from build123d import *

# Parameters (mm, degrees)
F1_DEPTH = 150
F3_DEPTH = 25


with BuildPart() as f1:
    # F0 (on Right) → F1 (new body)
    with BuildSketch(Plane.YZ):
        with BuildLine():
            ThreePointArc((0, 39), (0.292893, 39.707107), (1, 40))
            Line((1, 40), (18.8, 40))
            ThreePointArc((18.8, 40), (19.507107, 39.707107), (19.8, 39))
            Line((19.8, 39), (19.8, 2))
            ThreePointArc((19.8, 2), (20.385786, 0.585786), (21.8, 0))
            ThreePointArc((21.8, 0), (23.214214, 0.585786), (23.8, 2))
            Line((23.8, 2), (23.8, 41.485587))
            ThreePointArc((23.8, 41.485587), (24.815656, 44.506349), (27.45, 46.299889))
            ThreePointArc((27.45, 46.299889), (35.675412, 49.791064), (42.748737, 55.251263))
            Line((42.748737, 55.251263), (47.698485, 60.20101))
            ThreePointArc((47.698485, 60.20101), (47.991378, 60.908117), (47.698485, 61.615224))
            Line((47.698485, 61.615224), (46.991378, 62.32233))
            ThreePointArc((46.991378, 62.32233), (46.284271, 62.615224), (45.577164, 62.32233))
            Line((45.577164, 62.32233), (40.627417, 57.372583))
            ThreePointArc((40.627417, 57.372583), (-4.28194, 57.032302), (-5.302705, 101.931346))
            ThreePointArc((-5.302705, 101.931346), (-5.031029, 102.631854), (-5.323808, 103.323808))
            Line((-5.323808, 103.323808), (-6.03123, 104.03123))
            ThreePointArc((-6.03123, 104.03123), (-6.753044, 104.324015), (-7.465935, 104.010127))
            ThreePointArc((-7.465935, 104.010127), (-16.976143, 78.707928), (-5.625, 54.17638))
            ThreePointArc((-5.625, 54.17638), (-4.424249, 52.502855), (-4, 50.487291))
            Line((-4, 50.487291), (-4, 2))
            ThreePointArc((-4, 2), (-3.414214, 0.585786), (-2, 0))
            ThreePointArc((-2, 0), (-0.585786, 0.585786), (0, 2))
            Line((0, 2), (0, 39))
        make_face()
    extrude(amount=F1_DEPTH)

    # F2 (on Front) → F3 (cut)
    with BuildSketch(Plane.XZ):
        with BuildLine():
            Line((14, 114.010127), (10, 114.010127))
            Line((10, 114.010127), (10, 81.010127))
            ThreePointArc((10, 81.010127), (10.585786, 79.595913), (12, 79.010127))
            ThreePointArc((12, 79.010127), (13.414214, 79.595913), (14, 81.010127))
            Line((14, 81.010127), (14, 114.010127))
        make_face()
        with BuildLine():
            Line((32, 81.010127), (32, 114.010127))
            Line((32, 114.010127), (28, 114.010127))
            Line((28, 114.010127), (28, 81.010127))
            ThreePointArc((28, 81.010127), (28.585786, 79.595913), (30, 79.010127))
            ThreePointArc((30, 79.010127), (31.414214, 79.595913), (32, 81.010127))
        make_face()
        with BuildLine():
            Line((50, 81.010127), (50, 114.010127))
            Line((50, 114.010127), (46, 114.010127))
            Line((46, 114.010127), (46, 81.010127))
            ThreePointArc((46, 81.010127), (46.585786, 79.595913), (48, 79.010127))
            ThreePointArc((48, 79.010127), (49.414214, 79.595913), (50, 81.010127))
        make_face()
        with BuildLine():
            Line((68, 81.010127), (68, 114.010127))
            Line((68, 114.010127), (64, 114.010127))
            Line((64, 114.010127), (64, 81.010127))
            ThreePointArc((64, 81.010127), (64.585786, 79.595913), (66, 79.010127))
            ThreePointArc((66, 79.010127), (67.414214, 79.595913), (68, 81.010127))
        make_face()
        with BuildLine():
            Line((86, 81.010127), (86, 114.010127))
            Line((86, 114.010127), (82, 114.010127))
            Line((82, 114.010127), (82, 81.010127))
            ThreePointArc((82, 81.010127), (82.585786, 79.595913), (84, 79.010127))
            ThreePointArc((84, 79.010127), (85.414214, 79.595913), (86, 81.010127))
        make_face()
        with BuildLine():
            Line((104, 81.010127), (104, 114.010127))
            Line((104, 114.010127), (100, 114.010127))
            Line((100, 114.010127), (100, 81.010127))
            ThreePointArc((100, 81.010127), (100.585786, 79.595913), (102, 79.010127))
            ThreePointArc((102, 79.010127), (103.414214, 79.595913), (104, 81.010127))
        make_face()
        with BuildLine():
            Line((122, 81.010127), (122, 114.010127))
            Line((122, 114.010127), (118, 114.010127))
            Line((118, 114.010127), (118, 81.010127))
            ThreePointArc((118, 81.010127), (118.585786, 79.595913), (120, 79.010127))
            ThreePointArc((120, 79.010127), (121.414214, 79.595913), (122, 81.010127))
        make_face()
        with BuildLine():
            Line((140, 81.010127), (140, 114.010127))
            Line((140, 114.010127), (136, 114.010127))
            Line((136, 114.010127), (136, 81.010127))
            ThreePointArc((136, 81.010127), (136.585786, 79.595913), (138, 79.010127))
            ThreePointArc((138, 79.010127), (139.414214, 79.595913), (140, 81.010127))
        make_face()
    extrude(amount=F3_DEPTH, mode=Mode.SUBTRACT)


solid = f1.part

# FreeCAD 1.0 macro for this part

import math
import FreeCAD as App
import Part
import Sketcher

V = App.Vector

doc = App.newDocument("Part")
params = doc.addObject("Spreadsheet::Sheet", "Params")
for row, (alias, value) in enumerate([
    ("sketch1_radius", "0.999999 mm"),
    ("sketch1_radius2", "0.999999 mm"),
    ("sketch1_radius3", "1.999999 mm"),
    ("sketch1_radius4", "5.000001 mm"),
    ("sketch1_radius5", "1.000001 mm"),
    ("pad1_length", "150 mm"),
    ("sketch2_radius", "1.999999 mm"),
    ("sketch2_height", "33 mm"),
    ("pocket1_length", "25 mm"),
], start=1):
    params.set(f"A{row}", alias)
    params.set(f"B{row}", "=" + value)
    params.setAlias(f"B{row}", alias)

body = doc.addObject("PartDesign::Body", "Body")

# Sketch on YZ plane
sketch1 = doc.addObject("Sketcher::SketchObject", "Sketch")
body.addObject(sketch1)
sketch1.AttachmentSupport = (doc.YZ_Plane, [""])
sketch1.MapMode = "FlatFace"
sketch1.addGeometry([
    Part.ArcOfCircle(Part.Circle(V(0.999999, 39.000001, 0), V(0, 0, 1), 0.999999), math.radians(89.999957), math.radians(180.000043)),  # 0
    Part.LineSegment(V(1, 40, 0), V(18.8, 40, 0)),  # 1
    Part.ArcOfCircle(Part.Circle(V(18.800001, 39.000001, 0), V(0, 0, 1), 0.999999), math.radians(-0.000043), math.radians(90.000043)),  # 2
    Part.LineSegment(V(19.8, 39, 0), V(19.8, 2, 0)),  # 3
    Part.ArcOfCircle(Part.Circle(V(21.799999, 1.999999, 0), V(0, 0, 1), 1.999999), math.radians(179.999957), math.radians(270.000043)),  # 4
    Part.ArcOfCircle(Part.Circle(V(21.800001, 1.999999, 0), V(0, 0, 1), 1.999999), math.radians(-90.000043), math.radians(0.000043)),  # 5
    Part.LineSegment(V(23.8, 2, 0), V(23.8, 41.485587, 0)),  # 6
    Part.ArcOfCircle(Part.Circle(V(28.800001, 41.485587, 0), V(0, 0, 1), 5.000001), math.radians(105.664274), math.radians(179.999997)),  # 7
    Part.ArcOfCircle(Part.Circle(V(18.000006, 79.999989, 0), V(0, 0, 1), 34.999987), math.radians(-74.335738), math.radians(-44.999994)),  # 8
    Part.LineSegment(V(42.748737, 55.251263, 0), V(47.698485, 60.20101, 0)),  # 9
    Part.ArcOfCircle(Part.Circle(V(46.991377, 60.908117, 0), V(0, 0, 1), 1.000001), math.radians(-44.999957), math.radians(44.999957)),  # 10
    Part.LineSegment(V(47.698485, 61.615224, 0), V(46.991378, 62.32233, 0)),  # 11
    Part.ArcOfCircle(Part.Circle(V(46.284271, 61.615225, 0), V(0, 0, 1), 0.999999), math.radians(44.999904), math.radians(135.000096)),  # 12
    Part.LineSegment(V(45.577164, 62.32233, 0), V(40.627417, 57.372583, 0)),  # 13
    Part.ArcOfCircle(Part.Circle(V(18, 80, 0), V(0, 0, 1), 32), math.radians(136.736502), math.radians(315)),  # 14
    Part.ArcOfCircle(Part.Circle(V(-6.030914, 102.616701, 0), V(0, 0, 1), 1), math.radians(-43.263536), math.radians(45.000058)),  # 15
    Part.LineSegment(V(-5.323808, 103.323808, 0), V(-6.03123, 104.03123, 0)),  # 16
    Part.ArcOfCircle(Part.Circle(V(-6.738337, 103.324123, 0), V(0, 0, 1), 1), math.radians(45.000015), math.radians(136.685384)),  # 17
    Part.ArcOfCircle(Part.Circle(V(17.999999, 80.000001, 0), V(0, 0, 1), 34.999999), math.radians(136.685413), math.radians(227.545851)),  # 18
    Part.ArcOfCircle(Part.Circle(V(-9.000006, 50.487289, 0), V(0, 0, 1), 5.000006), math.radians(0.000029), math.radians(47.545817)),  # 19
    Part.LineSegment(V(-4, 50.487291, 0), V(-4, 2, 0)),  # 20
    Part.ArcOfCircle(Part.Circle(V(-2.000001, 1.999999, 0), V(0, 0, 1), 1.999999), math.radians(179.999957), math.radians(270.000043)),  # 21
    Part.ArcOfCircle(Part.Circle(V(-1.999999, 1.999999, 0), V(0, 0, 1), 1.999999), math.radians(-90.000043), math.radians(0.000043)),  # 22
    Part.LineSegment(V(0, 2, 0), V(0, 39, 0)),  # 23
], False)
sketch1.addConstraint([
    Sketcher.Constraint("Coincident", 0, 1, 1, 1),
    Sketcher.Constraint("Coincident", 1, 2, 2, 2),
    Sketcher.Constraint("Coincident", 2, 1, 3, 1),
    Sketcher.Constraint("Coincident", 3, 2, 4, 1),
    Sketcher.Constraint("Coincident", 4, 2, 5, 1),
    Sketcher.Constraint("Coincident", 5, 2, 6, 1),
    Sketcher.Constraint("Coincident", 6, 2, 7, 2),
    Sketcher.Constraint("Coincident", 7, 1, 8, 1),
    Sketcher.Constraint("Coincident", 8, 2, 9, 1),
    Sketcher.Constraint("Coincident", 9, 2, 10, 1),
    Sketcher.Constraint("Coincident", 10, 2, 11, 1),
    Sketcher.Constraint("Coincident", 11, 2, 12, 1),
    Sketcher.Constraint("Coincident", 12, 2, 13, 1),
    Sketcher.Constraint("Coincident", 13, 2, 14, 2),
    Sketcher.Constraint("Coincident", 14, 1, 15, 1),
    Sketcher.Constraint("Coincident", 15, 2, 16, 1),
    Sketcher.Constraint("Coincident", 16, 2, 17, 1),
    Sketcher.Constraint("Coincident", 17, 2, 18, 1),
    Sketcher.Constraint("Coincident", 18, 2, 19, 2),
    Sketcher.Constraint("Coincident", 19, 1, 20, 1),
    Sketcher.Constraint("Coincident", 20, 2, 21, 1),
    Sketcher.Constraint("Coincident", 21, 2, 22, 1),
    Sketcher.Constraint("Coincident", 22, 2, 23, 1),
    Sketcher.Constraint("Coincident", 23, 2, 0, 2),
    Sketcher.Constraint("Horizontal", 1),
    Sketcher.Constraint("Vertical", 3),
    Sketcher.Constraint("Vertical", 6),
    Sketcher.Constraint("Vertical", 20),
    Sketcher.Constraint("Vertical", 23),
    Sketcher.Constraint("Coincident", 5, 3, 4, 3),
    Sketcher.Constraint("Coincident", 18, 3, 14, 3),
    Sketcher.Constraint("Coincident", 22, 3, 21, 3),
    Sketcher.Constraint("PointOnObject", 4, 2, -1),
    Sketcher.Constraint("PointOnObject", 21, 2, -1),
    Sketcher.Constraint("PointOnObject", 22, 2, -2),
    Sketcher.Constraint("Radius", 0, 0.999999),
    Sketcher.Constraint("Radius", 2, 0.999999),
    Sketcher.Constraint("Radius", 4, 1.999999),
    Sketcher.Constraint("Radius", 7, 5.000001),
    Sketcher.Constraint("Radius", 10, 1.000001),
    Sketcher.Constraint("Radius", 12, 0.999999),
    Sketcher.Constraint("Radius", 14, 32.0),
    Sketcher.Constraint("Radius", 15, 1.0),
    Sketcher.Constraint("Radius", 17, 1.0),
    Sketcher.Constraint("Radius", 18, 34.999999),
    Sketcher.Constraint("Radius", 21, 1.999999),
    Sketcher.Constraint("DistanceY", 3, 2, 3, 1, 37.0),
    Sketcher.Constraint("DistanceY", 23, 1, 23, 2, 37.0),
    Sketcher.Constraint("Distance", 9, 7.0),
    Sketcher.Constraint("Distance", 11, 1.0),
    Sketcher.Constraint("Distance", 13, 6.999999),
    Sketcher.Constraint("DistanceX", 1, 1, 1, 2, 17.8),
    Sketcher.Constraint("DistanceY", -1, 1, 0, 3, 39.000001),
    Sketcher.Constraint("DistanceX", -1, 1, 14, 3, 18.0),
    Sketcher.Constraint("DistanceY", -1, 1, 14, 3, 80.0),
    Sketcher.Constraint("DistanceX", -1, 1, 0, 1, 1.0),
    Sketcher.Constraint("DistanceY", -1, 1, 2, 1, 39.0),
    Sketcher.Constraint("DistanceY", -1, 1, 5, 2, 2.0),
    Sketcher.Constraint("DistanceY", -1, 1, 20, 2, 2.0),
    Sketcher.Constraint("DistanceX", 21, 2, -1, 1, 2.0),
    Sketcher.Constraint("DistanceY", -1, 1, 22, 2, 2.0),
    Sketcher.Constraint("DistanceX", 1, 2, 7, 3, 10.000001),
    Sketcher.Constraint("DistanceX", 3, 2, 4, 2, 2.0),
    Sketcher.Constraint("DistanceX", -1, 1, 7, 1, 27.45),
    Sketcher.Constraint("DistanceX", 18, 2, -1, 1, 5.625),
    Sketcher.Constraint("Radius", 8, 34.999987),
    Sketcher.Constraint("Radius", 19, 5.000006),
    Sketcher.Constraint("DistanceY", 20, 2, 20, 1, 48.487291),
    Sketcher.Constraint("DistanceY", -1, 1, 15, 3, 102.616701),
    Sketcher.Constraint("DistanceY", 7, 3, 8, 3, 38.514402),
    Sketcher.Constraint("DistanceY", 7, 3, 19, 3, 9.001702),
    Sketcher.Constraint("DistanceX", 17, 2, 17, 3, 0.727598),
    Sketcher.Constraint("DistanceY", 6, 1, 6, 2, 39.485587),
    Sketcher.Constraint("DistanceX", -1, 1, 12, 3, 46.284271),
    Sketcher.Constraint("DistanceY", -1, 1, 9, 2, 60.20101),
    Sketcher.Constraint("DistanceY", -1, 1, 11, 2, 62.32233),
    Sketcher.Constraint("DistanceY", -1, 1, 12, 2, 62.32233),
    Sketcher.Constraint("DistanceY", -1, 1, 15, 2, 103.323808),
    Sketcher.Constraint("DistanceX", 16, 2, -1, 1, 6.03123),
    Sketcher.Constraint("DistanceY", -1, 1, 16, 2, 104.03123),
    Sketcher.Constraint("DistanceY", 7, 3, 10, 3, 19.42253),
    Sketcher.Constraint("DistanceX", 8, 3, 10, 3, 28.991371),
    Sketcher.Constraint("DistanceY", 10, 3, 12, 3, 0.707108),
    Sketcher.Constraint("DistanceX", 15, 3, 14, 1, 0.728209),
])
sketch1.setExpression("Constraints[35]", "Params.sketch1_radius")
sketch1.setExpression("Constraints[36]", "Params.sketch1_radius2")
sketch1.setExpression("Constraints[37]", "Params.sketch1_radius3")
sketch1.setExpression("Constraints[38]", "Params.sketch1_radius4")
sketch1.setExpression("Constraints[39]", "Params.sketch1_radius5")
pad1 = doc.addObject("PartDesign::Pad", "Pad")
body.addObject(pad1)
pad1.Profile = sketch1
pad1.setExpression("Length", "Params.pad1_length")

# Sketch on XZ plane
sketch2 = doc.addObject("Sketcher::SketchObject", "Sketch001")
body.addObject(sketch2)
sketch2.AttachmentSupport = (doc.XZ_Plane, [""])
sketch2.MapMode = "FlatFace"
sketch2.addGeometry([
    Part.LineSegment(V(14, 114, 0), V(10, 114, 0)),  # 0
    Part.LineSegment(V(10, 114, 0), V(10, 81, 0)),  # 1
    Part.ArcOfCircle(Part.Circle(V(12, 81, 0), V(0, 0, 1), 2), math.radians(180), math.radians(270)),  # 2
    Part.ArcOfCircle(Part.Circle(V(12, 81, 0), V(0, 0, 1), 2), math.radians(-90), math.radians(0)),  # 3
    Part.LineSegment(V(14, 81, 0), V(14, 114, 0)),  # 4
    Part.LineSegment(V(32, 81, 0), V(32, 114, 0)),  # 5
    Part.LineSegment(V(32, 114, 0), V(28, 114, 0)),  # 6
    Part.LineSegment(V(28, 114, 0), V(28, 81, 0)),  # 7
    Part.ArcOfCircle(Part.Circle(V(30, 81, 0), V(0, 0, 1), 2), math.radians(180), math.radians(270)),  # 8
    Part.ArcOfCircle(Part.Circle(V(30, 81, 0), V(0, 0, 1), 2), math.radians(-90), math.radians(0)),  # 9
    Part.LineSegment(V(50, 81, 0), V(50, 114, 0)),  # 10
    Part.LineSegment(V(50, 114, 0), V(46, 114, 0)),  # 11
    Part.LineSegment(V(46, 114, 0), V(46, 81, 0)),  # 12
    Part.ArcOfCircle(Part.Circle(V(48, 81, 0), V(0, 0, 1), 2), math.radians(180), math.radians(270)),  # 13
    Part.ArcOfCircle(Part.Circle(V(48, 81, 0), V(0, 0, 1), 2), math.radians(-90), math.radians(0)),  # 14
    Part.LineSegment(V(68, 81, 0), V(68, 114, 0)),  # 15
    Part.LineSegment(V(68, 114, 0), V(64, 114, 0)),  # 16
    Part.LineSegment(V(64, 114, 0), V(64, 81, 0)),  # 17
    Part.ArcOfCircle(Part.Circle(V(66, 81, 0), V(0, 0, 1), 2), math.radians(180), math.radians(270)),  # 18
    Part.ArcOfCircle(Part.Circle(V(66, 81, 0), V(0, 0, 1), 2), math.radians(-90), math.radians(0)),  # 19
    Part.LineSegment(V(86, 81, 0), V(86, 114, 0)),  # 20
    Part.LineSegment(V(86, 114, 0), V(82, 114, 0)),  # 21
    Part.LineSegment(V(82, 114, 0), V(82, 81, 0)),  # 22
    Part.ArcOfCircle(Part.Circle(V(84, 81, 0), V(0, 0, 1), 2), math.radians(180), math.radians(270)),  # 23
    Part.ArcOfCircle(Part.Circle(V(84, 81, 0), V(0, 0, 1), 2), math.radians(-90), math.radians(0)),  # 24
    Part.LineSegment(V(104, 81, 0), V(104, 114, 0)),  # 25
    Part.LineSegment(V(104, 114, 0), V(100, 114, 0)),  # 26
    Part.LineSegment(V(100, 114, 0), V(100, 81, 0)),  # 27
    Part.ArcOfCircle(Part.Circle(V(102, 81, 0), V(0, 0, 1), 2), math.radians(180), math.radians(270)),  # 28
    Part.ArcOfCircle(Part.Circle(V(102, 81, 0), V(0, 0, 1), 2), math.radians(-90), math.radians(0)),  # 29
    Part.LineSegment(V(122, 81, 0), V(122, 114, 0)),  # 30
    Part.LineSegment(V(122, 114, 0), V(118, 114, 0)),  # 31
    Part.LineSegment(V(118, 114, 0), V(118, 81, 0)),  # 32
    Part.ArcOfCircle(Part.Circle(V(120, 81, 0), V(0, 0, 1), 2), math.radians(180), math.radians(270)),  # 33
    Part.ArcOfCircle(Part.Circle(V(120, 81, 0), V(0, 0, 1), 2), math.radians(-90), math.radians(0)),  # 34
    Part.LineSegment(V(140, 81, 0), V(140, 114, 0)),  # 35
    Part.LineSegment(V(140, 114, 0), V(136, 114, 0)),  # 36
    Part.LineSegment(V(136, 114, 0), V(136, 81, 0)),  # 37
    Part.ArcOfCircle(Part.Circle(V(138, 81, 0), V(0, 0, 1), 2), math.radians(180), math.radians(270)),  # 38
    Part.ArcOfCircle(Part.Circle(V(138, 81, 0), V(0, 0, 1), 2), math.radians(-90), math.radians(0)),  # 39
], False)
sketch2.addConstraint([
    Sketcher.Constraint("Coincident", 0, 2, 1, 1),
    Sketcher.Constraint("Tangent", 1, 2, 2, 1),
    Sketcher.Constraint("Tangent", 2, 2, 3, 1),
    Sketcher.Constraint("Tangent", 3, 2, 4, 1),
    Sketcher.Constraint("Coincident", 4, 2, 0, 1),
    Sketcher.Constraint("Coincident", 5, 2, 6, 1),
    Sketcher.Constraint("Coincident", 6, 2, 7, 1),
    Sketcher.Constraint("Tangent", 7, 2, 8, 1),
    Sketcher.Constraint("Tangent", 8, 2, 9, 1),
    Sketcher.Constraint("Tangent", 9, 2, 5, 1),
    Sketcher.Constraint("Coincident", 10, 2, 11, 1),
    Sketcher.Constraint("Coincident", 11, 2, 12, 1),
    Sketcher.Constraint("Tangent", 12, 2, 13, 1),
    Sketcher.Constraint("Tangent", 13, 2, 14, 1),
    Sketcher.Constraint("Tangent", 14, 2, 10, 1),
    Sketcher.Constraint("Coincident", 15, 2, 16, 1),
    Sketcher.Constraint("Coincident", 16, 2, 17, 1),
    Sketcher.Constraint("Tangent", 17, 2, 18, 1),
    Sketcher.Constraint("Tangent", 18, 2, 19, 1),
    Sketcher.Constraint("Tangent", 19, 2, 15, 1),
    Sketcher.Constraint("Coincident", 20, 2, 21, 1),
    Sketcher.Constraint("Coincident", 21, 2, 22, 1),
    Sketcher.Constraint("Tangent", 22, 2, 23, 1),
    Sketcher.Constraint("Tangent", 23, 2, 24, 1),
    Sketcher.Constraint("Tangent", 24, 2, 20, 1),
    Sketcher.Constraint("Coincident", 25, 2, 26, 1),
    Sketcher.Constraint("Coincident", 26, 2, 27, 1),
    Sketcher.Constraint("Tangent", 27, 2, 28, 1),
    Sketcher.Constraint("Tangent", 28, 2, 29, 1),
    Sketcher.Constraint("Tangent", 29, 2, 25, 1),
    Sketcher.Constraint("Coincident", 30, 2, 31, 1),
    Sketcher.Constraint("Coincident", 31, 2, 32, 1),
    Sketcher.Constraint("Tangent", 32, 2, 33, 1),
    Sketcher.Constraint("Tangent", 33, 2, 34, 1),
    Sketcher.Constraint("Tangent", 34, 2, 30, 1),
    Sketcher.Constraint("Coincident", 35, 2, 36, 1),
    Sketcher.Constraint("Coincident", 36, 2, 37, 1),
    Sketcher.Constraint("Tangent", 37, 2, 38, 1),
    Sketcher.Constraint("Tangent", 38, 2, 39, 1),
    Sketcher.Constraint("Tangent", 39, 2, 35, 1),
    Sketcher.Constraint("Horizontal", 0),
    Sketcher.Constraint("Vertical", 1),
    Sketcher.Constraint("Vertical", 4),
    Sketcher.Constraint("Vertical", 5),
    Sketcher.Constraint("Horizontal", 6),
    Sketcher.Constraint("Vertical", 7),
    Sketcher.Constraint("Vertical", 10),
    Sketcher.Constraint("Horizontal", 11),
    Sketcher.Constraint("Vertical", 12),
    Sketcher.Constraint("Vertical", 15),
    Sketcher.Constraint("Horizontal", 16),
    Sketcher.Constraint("Vertical", 17),
    Sketcher.Constraint("Vertical", 20),
    Sketcher.Constraint("Horizontal", 21),
    Sketcher.Constraint("Vertical", 22),
    Sketcher.Constraint("Vertical", 25),
    Sketcher.Constraint("Horizontal", 26),
    Sketcher.Constraint("Vertical", 27),
    Sketcher.Constraint("Vertical", 30),
    Sketcher.Constraint("Horizontal", 31),
    Sketcher.Constraint("Vertical", 32),
    Sketcher.Constraint("Vertical", 35),
    Sketcher.Constraint("Horizontal", 36),
    Sketcher.Constraint("Vertical", 37),
    Sketcher.Constraint("Equal", 2, 3),
    Sketcher.Constraint("Equal", 3, 8),
    Sketcher.Constraint("Equal", 8, 9),
    Sketcher.Constraint("Equal", 9, 13),
    Sketcher.Constraint("Equal", 13, 14),
    Sketcher.Constraint("Equal", 14, 18),
    Sketcher.Constraint("Equal", 18, 19),
    Sketcher.Constraint("Equal", 19, 23),
    Sketcher.Constraint("Equal", 23, 24),
    Sketcher.Constraint("Equal", 24, 28),
    Sketcher.Constraint("Equal", 28, 29),
    Sketcher.Constraint("Equal", 29, 33),
    Sketcher.Constraint("Equal", 33, 34),
    Sketcher.Constraint("Equal", 34, 38),
    Sketcher.Constraint("Equal", 38, 39),
    Sketcher.Constraint("Horizontal", 3, 3, 8, 3),
    Sketcher.Constraint("Horizontal", 9, 3, 13, 3),
    Sketcher.Constraint("Horizontal", 14, 3, 18, 3),
    Sketcher.Constraint("Horizontal", 19, 3, 23, 3),
    Sketcher.Constraint("Horizontal", 24, 3, 28, 3),
    Sketcher.Constraint("Horizontal", 29, 3, 33, 3),
    Sketcher.Constraint("Horizontal", 34, 3, 38, 3),
    Sketcher.Constraint("Horizontal", 4, 2, 5, 2),
    Sketcher.Constraint("Horizontal", 6, 2, 10, 2),
    Sketcher.Constraint("Horizontal", 11, 2, 15, 2),
    Sketcher.Constraint("Horizontal", 16, 2, 20, 2),
    Sketcher.Constraint("Horizontal", 21, 2, 25, 2),
    Sketcher.Constraint("Horizontal", 26, 2, 30, 2),
    Sketcher.Constraint("Horizontal", 31, 2, 35, 2),
    Sketcher.Constraint("Vertical", 3, 3, 2, 2),
    Sketcher.Constraint("Vertical", 9, 3, 8, 2),
    Sketcher.Constraint("Vertical", 14, 3, 13, 2),
    Sketcher.Constraint("Vertical", 19, 3, 18, 2),
    Sketcher.Constraint("Vertical", 24, 3, 23, 2),
    Sketcher.Constraint("Vertical", 29, 3, 28, 2),
    Sketcher.Constraint("Vertical", 34, 3, 33, 2),
    Sketcher.Constraint("Vertical", 39, 3, 38, 2),
    Sketcher.Constraint("Radius", 2, 1.999999),
    Sketcher.Constraint("DistanceY", 1, 2, 1, 1, 33.0),
    Sketcher.Constraint("DistanceX", -1, 1, 2, 3, 11.999999),
    Sketcher.Constraint("DistanceX", -1, 1, 8, 3, 29.999999),
    Sketcher.Constraint("DistanceX", -1, 1, 13, 3, 47.999999),
    Sketcher.Constraint("DistanceX", -1, 1, 18, 3, 65.999999),
    Sketcher.Constraint("DistanceX", -1, 1, 23, 3, 83.999999),
    Sketcher.Constraint("DistanceX", -1, 1, 28, 3, 101.999999),
    Sketcher.Constraint("DistanceX", -1, 1, 33, 3, 119.999999),
    Sketcher.Constraint("DistanceX", -1, 1, 38, 3, 137.999999),
    Sketcher.Constraint("DistanceY", -1, 1, 2, 3, 81.010126),
])
sketch2.setExpression("Constraints[101]", "Params.sketch2_radius")
sketch2.setExpression("Constraints[102]", "Params.sketch2_height")
pocket1 = doc.addObject("PartDesign::Pocket", "Pocket")
body.addObject(pocket1)
pocket1.Profile = sketch2
pocket1.setExpression("Length", "Params.pocket1_length")
pocket1.Reversed = True

doc.recompute()
